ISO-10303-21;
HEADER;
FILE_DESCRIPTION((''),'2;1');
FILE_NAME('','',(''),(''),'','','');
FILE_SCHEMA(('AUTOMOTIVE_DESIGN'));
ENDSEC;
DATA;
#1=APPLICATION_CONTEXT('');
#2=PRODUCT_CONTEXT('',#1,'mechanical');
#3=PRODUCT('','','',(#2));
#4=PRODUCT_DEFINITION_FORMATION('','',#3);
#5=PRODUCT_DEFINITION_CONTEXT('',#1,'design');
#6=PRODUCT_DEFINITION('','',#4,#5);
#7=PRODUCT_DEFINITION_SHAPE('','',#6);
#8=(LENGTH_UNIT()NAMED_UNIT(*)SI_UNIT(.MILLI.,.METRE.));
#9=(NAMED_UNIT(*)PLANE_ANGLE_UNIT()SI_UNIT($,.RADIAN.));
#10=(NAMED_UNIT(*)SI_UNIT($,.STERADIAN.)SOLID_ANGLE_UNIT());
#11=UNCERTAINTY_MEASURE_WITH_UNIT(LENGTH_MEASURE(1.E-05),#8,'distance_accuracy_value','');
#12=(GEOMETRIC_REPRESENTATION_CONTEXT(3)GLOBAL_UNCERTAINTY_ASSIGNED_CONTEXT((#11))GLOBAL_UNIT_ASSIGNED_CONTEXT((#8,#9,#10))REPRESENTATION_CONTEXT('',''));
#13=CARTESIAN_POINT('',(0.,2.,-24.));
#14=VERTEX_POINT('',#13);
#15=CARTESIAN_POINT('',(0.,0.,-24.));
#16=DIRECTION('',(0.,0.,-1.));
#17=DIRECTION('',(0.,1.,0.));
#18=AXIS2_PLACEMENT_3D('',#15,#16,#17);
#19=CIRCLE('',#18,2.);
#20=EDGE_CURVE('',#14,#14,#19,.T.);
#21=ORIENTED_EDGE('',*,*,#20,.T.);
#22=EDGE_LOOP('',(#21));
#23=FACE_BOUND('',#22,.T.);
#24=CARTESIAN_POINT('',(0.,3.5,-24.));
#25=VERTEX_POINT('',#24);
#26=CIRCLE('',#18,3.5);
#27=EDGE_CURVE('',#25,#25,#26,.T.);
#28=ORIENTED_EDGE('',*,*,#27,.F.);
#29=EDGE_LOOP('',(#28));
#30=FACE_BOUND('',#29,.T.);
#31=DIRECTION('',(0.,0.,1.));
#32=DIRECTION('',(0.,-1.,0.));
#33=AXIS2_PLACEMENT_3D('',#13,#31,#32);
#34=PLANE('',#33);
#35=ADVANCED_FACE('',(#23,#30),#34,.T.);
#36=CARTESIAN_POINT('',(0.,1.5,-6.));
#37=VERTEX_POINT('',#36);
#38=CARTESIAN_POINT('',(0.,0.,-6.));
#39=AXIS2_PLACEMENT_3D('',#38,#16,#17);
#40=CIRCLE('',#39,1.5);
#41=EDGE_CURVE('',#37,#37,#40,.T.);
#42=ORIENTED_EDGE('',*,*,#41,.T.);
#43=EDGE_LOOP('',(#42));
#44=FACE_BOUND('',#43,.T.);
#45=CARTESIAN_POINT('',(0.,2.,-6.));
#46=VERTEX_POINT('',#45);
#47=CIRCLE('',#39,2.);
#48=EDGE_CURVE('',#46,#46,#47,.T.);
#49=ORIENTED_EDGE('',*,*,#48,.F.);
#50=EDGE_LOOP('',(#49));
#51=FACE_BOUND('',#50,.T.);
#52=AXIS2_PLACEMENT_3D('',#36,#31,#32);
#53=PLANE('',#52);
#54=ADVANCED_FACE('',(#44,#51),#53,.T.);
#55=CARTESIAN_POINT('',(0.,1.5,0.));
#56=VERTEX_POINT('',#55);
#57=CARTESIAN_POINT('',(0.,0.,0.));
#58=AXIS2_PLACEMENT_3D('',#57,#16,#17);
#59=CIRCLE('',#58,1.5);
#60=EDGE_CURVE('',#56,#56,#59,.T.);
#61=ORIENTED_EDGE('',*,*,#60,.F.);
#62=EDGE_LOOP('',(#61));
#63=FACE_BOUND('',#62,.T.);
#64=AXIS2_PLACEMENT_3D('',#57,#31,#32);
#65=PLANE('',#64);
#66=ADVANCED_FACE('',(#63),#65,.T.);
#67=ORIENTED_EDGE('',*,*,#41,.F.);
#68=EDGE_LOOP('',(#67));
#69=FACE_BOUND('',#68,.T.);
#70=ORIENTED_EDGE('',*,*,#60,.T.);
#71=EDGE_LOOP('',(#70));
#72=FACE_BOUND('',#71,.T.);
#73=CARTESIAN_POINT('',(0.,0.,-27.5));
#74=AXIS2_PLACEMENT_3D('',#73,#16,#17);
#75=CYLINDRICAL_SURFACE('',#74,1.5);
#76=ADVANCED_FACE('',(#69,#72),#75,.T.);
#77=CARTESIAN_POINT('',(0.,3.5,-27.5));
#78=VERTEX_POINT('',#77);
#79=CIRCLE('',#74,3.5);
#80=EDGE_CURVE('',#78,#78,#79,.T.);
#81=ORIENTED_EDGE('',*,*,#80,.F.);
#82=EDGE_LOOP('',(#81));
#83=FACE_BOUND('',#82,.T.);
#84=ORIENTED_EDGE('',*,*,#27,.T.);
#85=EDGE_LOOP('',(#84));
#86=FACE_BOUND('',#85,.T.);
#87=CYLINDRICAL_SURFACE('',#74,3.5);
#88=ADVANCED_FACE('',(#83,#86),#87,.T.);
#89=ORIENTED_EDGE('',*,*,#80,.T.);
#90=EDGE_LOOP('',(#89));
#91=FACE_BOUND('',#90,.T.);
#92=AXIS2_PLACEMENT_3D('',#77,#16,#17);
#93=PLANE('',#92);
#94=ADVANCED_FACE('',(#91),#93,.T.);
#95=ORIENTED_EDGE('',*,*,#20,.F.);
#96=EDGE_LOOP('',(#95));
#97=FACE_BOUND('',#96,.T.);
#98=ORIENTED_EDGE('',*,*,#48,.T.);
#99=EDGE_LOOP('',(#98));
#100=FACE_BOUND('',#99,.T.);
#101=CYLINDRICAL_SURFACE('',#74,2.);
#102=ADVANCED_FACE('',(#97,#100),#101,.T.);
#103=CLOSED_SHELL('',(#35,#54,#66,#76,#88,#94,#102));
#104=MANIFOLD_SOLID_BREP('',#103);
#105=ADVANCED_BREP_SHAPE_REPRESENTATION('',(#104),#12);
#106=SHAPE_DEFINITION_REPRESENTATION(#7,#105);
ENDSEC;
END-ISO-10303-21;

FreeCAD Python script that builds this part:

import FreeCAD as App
import Part
import Sketcher
from FreeCAD import Vector
Q = App.Units.Quantity

doc = App.newDocument("Part")
params = doc.addObject("Spreadsheet::Sheet", "Params")
for row, (alias, value) in enumerate([
    ("sketch1_height", "18 mm"),
    ("sketch1_height2", "6 mm"),
    ("sketch1_width", "1.5 mm"),
    ("sketch1_width2", "3.5 mm"),
    ("revolution_angle", "360 deg"),
], start=1):
    params.set(f"A{row}", alias)
    params.set(f"B{row}", "=" + value)
    params.setAlias(f"B{row}", alias)

body = doc.addObject("PartDesign::Body", "Body")

sketch1 = body.newObject("Sketcher::SketchObject", "Sketch")
sketch1.AttachmentSupport = (doc.getObject("YZ_Plane"), [""])
sketch1.MapMode = "FlatFace"
sketch1.addGeometry([
    Part.LineSegment(Vector(1.5, 0, 0), Vector(0, 0, 0)),
    Part.LineSegment(Vector(0, 0, 0), Vector(0, -27.5, 0)),
    Part.LineSegment(Vector(0, -27.5, 0), Vector(3.5, -27.5, 0)),
    Part.LineSegment(Vector(3.5, -27.5, 0), Vector(3.5, -24, 0)),
    Part.LineSegment(Vector(3.5, -24, 0), Vector(2, -24, 0)),
    Part.LineSegment(Vector(2, -24, 0), Vector(2, -6, 0)),
    Part.LineSegment(Vector(2, -6, 0), Vector(1.5, -6, 0)),
    Part.LineSegment(Vector(1.5, -6, 0), Vector(1.5, 0, 0)),
], False)
sketch1.addConstraint([
    Sketcher.Constraint("Coincident", 0, 2, 1, 1),
    Sketcher.Constraint("Coincident", 1, 2, 2, 1),
    Sketcher.Constraint("Coincident", 2, 2, 3, 1),
    Sketcher.Constraint("Coincident", 3, 2, 4, 1),
    Sketcher.Constraint("Coincident", 4, 2, 5, 1),
    Sketcher.Constraint("Coincident", 5, 2, 6, 1),
    Sketcher.Constraint("Coincident", 6, 2, 7, 1),
    Sketcher.Constraint("Coincident", 7, 2, 0, 1),
    Sketcher.Constraint("Horizontal", 0),
    Sketcher.Constraint("Vertical", 1),
    Sketcher.Constraint("Horizontal", 2),
    Sketcher.Constraint("Vertical", 3),
    Sketcher.Constraint("Horizontal", 4),
    Sketcher.Constraint("Vertical", 5),
    Sketcher.Constraint("Horizontal", 6),
    Sketcher.Constraint("Vertical", 7),
    Sketcher.Constraint("Coincident", 0, 2, -1, 1),
    Sketcher.Constraint("Equal", 0, 4),
    Sketcher.Constraint("Equal", 2, 3),
    Sketcher.Constraint("DistanceY", 5, 1, 5, 2, Q("18 mm")),
    Sketcher.Constraint("DistanceY", 7, 1, 7, 2, Q("6 mm")),
    Sketcher.Constraint("DistanceX", 0, 2, 0, 1, Q("1.5 mm")),
    Sketcher.Constraint("DistanceX", 2, 1, 2, 2, Q("3.5 mm")),
])
sketch1.setExpression("Constraints[19]", "Params.sketch1_height")
sketch1.setExpression("Constraints[20]", "Params.sketch1_height2")
sketch1.setExpression("Constraints[21]", "Params.sketch1_width")
sketch1.setExpression("Constraints[22]", "Params.sketch1_width2")
revolution = body.newObject("PartDesign::Revolution", "Revolution")
revolution.Profile = sketch1
revolution.ReferenceAxis = (sketch1, ["V_Axis"])
revolution.setExpression("Angle", "Params.revolution_angle")

doc.recompute()
